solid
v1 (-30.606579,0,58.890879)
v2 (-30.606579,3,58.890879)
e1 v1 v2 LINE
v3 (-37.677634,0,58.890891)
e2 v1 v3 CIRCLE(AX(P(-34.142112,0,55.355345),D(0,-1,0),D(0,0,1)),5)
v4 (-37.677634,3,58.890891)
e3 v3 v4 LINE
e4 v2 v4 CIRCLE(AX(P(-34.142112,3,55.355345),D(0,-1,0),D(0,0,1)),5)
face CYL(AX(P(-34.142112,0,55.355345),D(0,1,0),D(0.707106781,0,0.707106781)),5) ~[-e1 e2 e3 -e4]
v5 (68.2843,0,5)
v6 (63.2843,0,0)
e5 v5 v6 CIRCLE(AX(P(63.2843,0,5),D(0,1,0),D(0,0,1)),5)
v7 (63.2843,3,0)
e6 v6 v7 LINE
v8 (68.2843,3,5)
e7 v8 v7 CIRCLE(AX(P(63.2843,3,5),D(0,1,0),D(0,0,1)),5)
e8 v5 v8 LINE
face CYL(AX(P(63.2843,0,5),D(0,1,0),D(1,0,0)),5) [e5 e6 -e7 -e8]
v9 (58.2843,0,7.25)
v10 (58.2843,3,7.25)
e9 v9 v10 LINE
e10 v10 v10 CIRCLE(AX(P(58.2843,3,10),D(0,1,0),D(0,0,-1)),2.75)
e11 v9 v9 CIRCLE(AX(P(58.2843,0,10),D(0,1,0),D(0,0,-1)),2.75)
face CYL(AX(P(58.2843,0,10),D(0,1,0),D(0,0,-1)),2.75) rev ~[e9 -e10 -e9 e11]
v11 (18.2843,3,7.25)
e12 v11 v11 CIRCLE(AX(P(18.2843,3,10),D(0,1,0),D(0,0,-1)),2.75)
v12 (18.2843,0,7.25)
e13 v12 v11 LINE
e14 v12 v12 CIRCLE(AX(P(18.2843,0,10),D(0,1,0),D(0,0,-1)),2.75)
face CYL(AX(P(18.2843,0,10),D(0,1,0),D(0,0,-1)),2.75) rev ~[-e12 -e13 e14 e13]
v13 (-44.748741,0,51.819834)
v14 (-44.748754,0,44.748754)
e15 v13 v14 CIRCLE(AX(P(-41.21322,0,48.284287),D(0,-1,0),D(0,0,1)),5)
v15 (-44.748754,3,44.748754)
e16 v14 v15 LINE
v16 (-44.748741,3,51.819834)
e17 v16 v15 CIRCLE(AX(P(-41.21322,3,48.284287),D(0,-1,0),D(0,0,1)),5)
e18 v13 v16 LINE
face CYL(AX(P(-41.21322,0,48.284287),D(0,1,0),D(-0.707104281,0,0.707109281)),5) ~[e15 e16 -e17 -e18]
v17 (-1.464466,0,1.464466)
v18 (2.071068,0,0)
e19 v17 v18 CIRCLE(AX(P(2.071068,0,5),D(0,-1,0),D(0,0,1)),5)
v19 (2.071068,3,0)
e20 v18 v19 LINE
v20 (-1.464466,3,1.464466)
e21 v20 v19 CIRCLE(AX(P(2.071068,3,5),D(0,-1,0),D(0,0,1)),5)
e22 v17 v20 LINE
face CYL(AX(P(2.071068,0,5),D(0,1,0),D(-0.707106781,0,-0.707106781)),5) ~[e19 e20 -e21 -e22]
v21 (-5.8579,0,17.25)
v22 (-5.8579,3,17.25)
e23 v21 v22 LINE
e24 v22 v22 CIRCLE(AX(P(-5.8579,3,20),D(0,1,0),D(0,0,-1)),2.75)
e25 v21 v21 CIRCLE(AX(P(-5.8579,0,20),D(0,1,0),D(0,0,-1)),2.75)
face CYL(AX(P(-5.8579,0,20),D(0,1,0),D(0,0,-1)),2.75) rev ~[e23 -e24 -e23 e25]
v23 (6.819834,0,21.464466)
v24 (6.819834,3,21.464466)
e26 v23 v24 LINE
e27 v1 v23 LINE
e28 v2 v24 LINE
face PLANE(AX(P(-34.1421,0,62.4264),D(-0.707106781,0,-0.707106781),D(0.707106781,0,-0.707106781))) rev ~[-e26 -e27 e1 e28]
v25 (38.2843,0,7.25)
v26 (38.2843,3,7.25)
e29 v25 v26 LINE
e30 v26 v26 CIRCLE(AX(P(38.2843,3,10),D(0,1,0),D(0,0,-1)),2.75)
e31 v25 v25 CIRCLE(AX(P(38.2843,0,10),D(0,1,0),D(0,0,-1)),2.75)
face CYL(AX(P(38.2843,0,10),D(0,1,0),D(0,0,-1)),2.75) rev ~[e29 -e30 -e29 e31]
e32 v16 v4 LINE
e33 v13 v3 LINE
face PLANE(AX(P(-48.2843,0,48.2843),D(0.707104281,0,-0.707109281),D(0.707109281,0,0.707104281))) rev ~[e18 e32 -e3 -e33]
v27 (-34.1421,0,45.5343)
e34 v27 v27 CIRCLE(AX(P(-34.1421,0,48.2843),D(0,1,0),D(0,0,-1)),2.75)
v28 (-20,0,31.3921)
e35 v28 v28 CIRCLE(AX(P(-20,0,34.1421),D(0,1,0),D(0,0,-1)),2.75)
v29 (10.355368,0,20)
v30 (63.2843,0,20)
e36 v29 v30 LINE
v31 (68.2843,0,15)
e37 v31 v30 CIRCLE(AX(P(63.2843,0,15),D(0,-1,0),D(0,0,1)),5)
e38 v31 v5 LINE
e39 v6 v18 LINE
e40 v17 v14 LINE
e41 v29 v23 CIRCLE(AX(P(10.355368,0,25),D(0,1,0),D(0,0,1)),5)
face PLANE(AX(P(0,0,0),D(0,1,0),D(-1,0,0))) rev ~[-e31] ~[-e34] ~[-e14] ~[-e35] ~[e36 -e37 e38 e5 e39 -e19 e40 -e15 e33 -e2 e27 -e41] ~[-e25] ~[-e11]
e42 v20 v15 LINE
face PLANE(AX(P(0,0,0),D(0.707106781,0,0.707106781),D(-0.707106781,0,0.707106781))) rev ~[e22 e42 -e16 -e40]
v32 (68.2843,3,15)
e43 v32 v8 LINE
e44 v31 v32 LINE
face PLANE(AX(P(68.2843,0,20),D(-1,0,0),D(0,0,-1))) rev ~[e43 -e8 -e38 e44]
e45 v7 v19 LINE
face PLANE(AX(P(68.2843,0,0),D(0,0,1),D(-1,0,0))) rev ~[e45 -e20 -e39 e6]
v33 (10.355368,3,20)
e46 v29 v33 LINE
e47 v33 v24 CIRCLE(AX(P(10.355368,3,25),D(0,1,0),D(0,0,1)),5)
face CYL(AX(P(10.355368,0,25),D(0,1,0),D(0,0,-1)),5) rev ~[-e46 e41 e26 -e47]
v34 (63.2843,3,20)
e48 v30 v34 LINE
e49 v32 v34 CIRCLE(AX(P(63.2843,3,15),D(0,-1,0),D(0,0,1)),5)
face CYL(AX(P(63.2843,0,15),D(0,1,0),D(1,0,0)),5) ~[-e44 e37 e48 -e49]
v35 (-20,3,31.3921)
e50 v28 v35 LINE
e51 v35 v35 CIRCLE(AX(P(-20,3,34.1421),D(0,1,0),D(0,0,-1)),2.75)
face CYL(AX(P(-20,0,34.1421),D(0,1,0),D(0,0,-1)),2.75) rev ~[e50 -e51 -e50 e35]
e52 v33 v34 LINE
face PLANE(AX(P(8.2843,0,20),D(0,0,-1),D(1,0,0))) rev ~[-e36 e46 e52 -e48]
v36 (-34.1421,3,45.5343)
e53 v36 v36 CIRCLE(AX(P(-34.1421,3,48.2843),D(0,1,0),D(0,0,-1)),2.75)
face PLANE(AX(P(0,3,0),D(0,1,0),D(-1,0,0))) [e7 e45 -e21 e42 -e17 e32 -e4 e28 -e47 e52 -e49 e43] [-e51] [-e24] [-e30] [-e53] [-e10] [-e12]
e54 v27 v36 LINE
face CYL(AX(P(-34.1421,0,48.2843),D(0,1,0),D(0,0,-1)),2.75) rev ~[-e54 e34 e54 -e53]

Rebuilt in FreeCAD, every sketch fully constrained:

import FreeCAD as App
import Part
import Sketcher

V = App.Vector
Q = App.Units.Quantity


def edges_at(feature, points):
    """Names of the edges that pass closest to the given points."""
    edges = feature.Shape.Edges
    near = lambda p: min(range(len(edges)), key=lambda i: edges[i].distToShape(Part.Vertex(*p))[0])
    return sorted({f"Edge{near(p) + 1}" for p in points})


def add_polygon(sketch, points):
    """Adds a closed chain of lines whose ends are joined by coincident constraints."""
    first, n = sketch.GeometryCount, len(points)
    for a, b in zip(points, points[1:] + points[:1]):
        sketch.addGeometry(Part.LineSegment(App.Vector(*a, 0), App.Vector(*b, 0)), False)
    for i in range(n):
        sketch.addConstraint(Sketcher.Constraint("Coincident", first + i, 2, first + (i + 1) % n, 1))

doc = App.newDocument("Part")
body = doc.addObject("PartDesign::Body", "Body")

sketch1 = doc.addObject("Sketcher::SketchObject", "Sketch")
body.addObject(sketch1)
sketch1.AttachmentSupport = (doc.XZ_Plane, [""])
sketch1.MapMode = "FlatFace"
add_polygon(sketch1, [(68, 20), (68, 0), (0, 0), (-48, 48), (-34, 62), (8, 20)])
sketch1.addConstraint([
    Sketcher.Constraint("Vertical", 0),
    Sketcher.Constraint("Horizontal", 1),
    Sketcher.Constraint("Horizontal", 5),
    Sketcher.Constraint("Coincident", 1, 2, -1, 1),
    Sketcher.Constraint("Perpendicular", 2, 3),
    Sketcher.Constraint("Perpendicular", 3, 4),
    Sketcher.Constraint("DistanceX", 5, 1, 5, 2, Q("60 mm")),
    Sketcher.Constraint("DistanceY", 0, 2, 0, 1, Q("20 mm")),
    Sketcher.Constraint("Angle", 2, Q("135 deg")),
    Sketcher.Constraint("Distance", 3, Q("20 mm")),
    Sketcher.Constraint("Distance", 4, Q("60 mm")),
])
pad1 = doc.addObject("PartDesign::Pad", "Pad")
body.addObject(pad1)
pad1.Profile = sketch1
pad1.Length = 3
pad1.Reversed = True
doc.recompute()

fillet = doc.addObject("PartDesign::Fillet", "Fillet")
body.addObject(fillet)
fillet.Base = (pad1, edges_at(pad1, [
    (-34.142, 1.5, 62.426),
    (-48.284, 1.5, 48.284),
    (8.284, 1.5, 20),
    (0, 1.5, 0),
    (68.284, 1.5, 20),
    (68.284, 1.5, 0),
]))
fillet.Radius = 5

sketch2 = doc.addObject("Sketcher::SketchObject", "Sketch001")
body.addObject(sketch2)
sketch2.AttachmentSupport = (doc.XZ_Plane, [""])
sketch2.MapMode = "FlatFace"
sketch2.addGeometry([
    Part.Circle(V(58.3, 10, 0), V(0, 0, 1), 2.8),
    Part.Circle(V(38.3, 10, 0), V(0, 0, 1), 2.8),
    Part.Circle(V(18.3, 10, 0), V(0, 0, 1), 2.8),
    Part.Circle(V(-5.9, 20, 0), V(0, 0, 1), 2.8),
    Part.Circle(V(-34.1, 48.3, 0), V(0, 0, 1), 2.8),
    Part.Circle(V(-20, 34.1, 0), V(0, 0, 1), 2.8),
], False)
sketch2.addConstraint([
    Sketcher.Constraint("Equal", 0, 1),
    Sketcher.Constraint("Equal", 1, 2),
    Sketcher.Constraint("Equal", 2, 3),
    Sketcher.Constraint("Equal", 3, 4),
    Sketcher.Constraint("Equal", 4, 5),
    Sketcher.Constraint("Horizontal", 0, 3, 1, 3),
    Sketcher.Constraint("Horizontal", 1, 3, 2, 3),
    Sketcher.Constraint("Diameter", 0, Q("5.5 mm")),
    Sketcher.Constraint("DistanceY", -1, 1, 0, 3, Q("10 mm")),
    Sketcher.Constraint("DistanceY", -1, 1, 3, 3, Q("20 mm")),
    Sketcher.Constraint("DistanceX", 5, 3, -1, 1, Q("20 mm")),
    Sketcher.Constraint("DistanceX", 1, 3, 0, 3, Q("20 mm")),
    Sketcher.Constraint("DistanceX", 2, 3, 1, 3, Q("20 mm")),
    Sketcher.Constraint("DistanceX", 3, 3, -1, 1, Q("5.858 mm")),
    Sketcher.Constraint("DistanceX", 4, 3, -1, 1, Q("34.142 mm")),
    Sketcher.Constraint("DistanceY", -1, 1, 5, 3, Q("34.142 mm")),
    Sketcher.Constraint("DistanceX", -1, 1, 0, 3, Q("58.2843 mm")),
    Sketcher.Constraint("DistanceY", -1, 1, 4, 3, Q("48.2843 mm")),
])
doc.recompute()
hole = doc.addObject("PartDesign::Hole", "Hole")
body.addObject(hole)
hole.Profile = sketch2
hole.ThreadType = "None"
hole.Diameter = 5.5
hole.DepthType = "ThroughAll"

doc.recompute()
